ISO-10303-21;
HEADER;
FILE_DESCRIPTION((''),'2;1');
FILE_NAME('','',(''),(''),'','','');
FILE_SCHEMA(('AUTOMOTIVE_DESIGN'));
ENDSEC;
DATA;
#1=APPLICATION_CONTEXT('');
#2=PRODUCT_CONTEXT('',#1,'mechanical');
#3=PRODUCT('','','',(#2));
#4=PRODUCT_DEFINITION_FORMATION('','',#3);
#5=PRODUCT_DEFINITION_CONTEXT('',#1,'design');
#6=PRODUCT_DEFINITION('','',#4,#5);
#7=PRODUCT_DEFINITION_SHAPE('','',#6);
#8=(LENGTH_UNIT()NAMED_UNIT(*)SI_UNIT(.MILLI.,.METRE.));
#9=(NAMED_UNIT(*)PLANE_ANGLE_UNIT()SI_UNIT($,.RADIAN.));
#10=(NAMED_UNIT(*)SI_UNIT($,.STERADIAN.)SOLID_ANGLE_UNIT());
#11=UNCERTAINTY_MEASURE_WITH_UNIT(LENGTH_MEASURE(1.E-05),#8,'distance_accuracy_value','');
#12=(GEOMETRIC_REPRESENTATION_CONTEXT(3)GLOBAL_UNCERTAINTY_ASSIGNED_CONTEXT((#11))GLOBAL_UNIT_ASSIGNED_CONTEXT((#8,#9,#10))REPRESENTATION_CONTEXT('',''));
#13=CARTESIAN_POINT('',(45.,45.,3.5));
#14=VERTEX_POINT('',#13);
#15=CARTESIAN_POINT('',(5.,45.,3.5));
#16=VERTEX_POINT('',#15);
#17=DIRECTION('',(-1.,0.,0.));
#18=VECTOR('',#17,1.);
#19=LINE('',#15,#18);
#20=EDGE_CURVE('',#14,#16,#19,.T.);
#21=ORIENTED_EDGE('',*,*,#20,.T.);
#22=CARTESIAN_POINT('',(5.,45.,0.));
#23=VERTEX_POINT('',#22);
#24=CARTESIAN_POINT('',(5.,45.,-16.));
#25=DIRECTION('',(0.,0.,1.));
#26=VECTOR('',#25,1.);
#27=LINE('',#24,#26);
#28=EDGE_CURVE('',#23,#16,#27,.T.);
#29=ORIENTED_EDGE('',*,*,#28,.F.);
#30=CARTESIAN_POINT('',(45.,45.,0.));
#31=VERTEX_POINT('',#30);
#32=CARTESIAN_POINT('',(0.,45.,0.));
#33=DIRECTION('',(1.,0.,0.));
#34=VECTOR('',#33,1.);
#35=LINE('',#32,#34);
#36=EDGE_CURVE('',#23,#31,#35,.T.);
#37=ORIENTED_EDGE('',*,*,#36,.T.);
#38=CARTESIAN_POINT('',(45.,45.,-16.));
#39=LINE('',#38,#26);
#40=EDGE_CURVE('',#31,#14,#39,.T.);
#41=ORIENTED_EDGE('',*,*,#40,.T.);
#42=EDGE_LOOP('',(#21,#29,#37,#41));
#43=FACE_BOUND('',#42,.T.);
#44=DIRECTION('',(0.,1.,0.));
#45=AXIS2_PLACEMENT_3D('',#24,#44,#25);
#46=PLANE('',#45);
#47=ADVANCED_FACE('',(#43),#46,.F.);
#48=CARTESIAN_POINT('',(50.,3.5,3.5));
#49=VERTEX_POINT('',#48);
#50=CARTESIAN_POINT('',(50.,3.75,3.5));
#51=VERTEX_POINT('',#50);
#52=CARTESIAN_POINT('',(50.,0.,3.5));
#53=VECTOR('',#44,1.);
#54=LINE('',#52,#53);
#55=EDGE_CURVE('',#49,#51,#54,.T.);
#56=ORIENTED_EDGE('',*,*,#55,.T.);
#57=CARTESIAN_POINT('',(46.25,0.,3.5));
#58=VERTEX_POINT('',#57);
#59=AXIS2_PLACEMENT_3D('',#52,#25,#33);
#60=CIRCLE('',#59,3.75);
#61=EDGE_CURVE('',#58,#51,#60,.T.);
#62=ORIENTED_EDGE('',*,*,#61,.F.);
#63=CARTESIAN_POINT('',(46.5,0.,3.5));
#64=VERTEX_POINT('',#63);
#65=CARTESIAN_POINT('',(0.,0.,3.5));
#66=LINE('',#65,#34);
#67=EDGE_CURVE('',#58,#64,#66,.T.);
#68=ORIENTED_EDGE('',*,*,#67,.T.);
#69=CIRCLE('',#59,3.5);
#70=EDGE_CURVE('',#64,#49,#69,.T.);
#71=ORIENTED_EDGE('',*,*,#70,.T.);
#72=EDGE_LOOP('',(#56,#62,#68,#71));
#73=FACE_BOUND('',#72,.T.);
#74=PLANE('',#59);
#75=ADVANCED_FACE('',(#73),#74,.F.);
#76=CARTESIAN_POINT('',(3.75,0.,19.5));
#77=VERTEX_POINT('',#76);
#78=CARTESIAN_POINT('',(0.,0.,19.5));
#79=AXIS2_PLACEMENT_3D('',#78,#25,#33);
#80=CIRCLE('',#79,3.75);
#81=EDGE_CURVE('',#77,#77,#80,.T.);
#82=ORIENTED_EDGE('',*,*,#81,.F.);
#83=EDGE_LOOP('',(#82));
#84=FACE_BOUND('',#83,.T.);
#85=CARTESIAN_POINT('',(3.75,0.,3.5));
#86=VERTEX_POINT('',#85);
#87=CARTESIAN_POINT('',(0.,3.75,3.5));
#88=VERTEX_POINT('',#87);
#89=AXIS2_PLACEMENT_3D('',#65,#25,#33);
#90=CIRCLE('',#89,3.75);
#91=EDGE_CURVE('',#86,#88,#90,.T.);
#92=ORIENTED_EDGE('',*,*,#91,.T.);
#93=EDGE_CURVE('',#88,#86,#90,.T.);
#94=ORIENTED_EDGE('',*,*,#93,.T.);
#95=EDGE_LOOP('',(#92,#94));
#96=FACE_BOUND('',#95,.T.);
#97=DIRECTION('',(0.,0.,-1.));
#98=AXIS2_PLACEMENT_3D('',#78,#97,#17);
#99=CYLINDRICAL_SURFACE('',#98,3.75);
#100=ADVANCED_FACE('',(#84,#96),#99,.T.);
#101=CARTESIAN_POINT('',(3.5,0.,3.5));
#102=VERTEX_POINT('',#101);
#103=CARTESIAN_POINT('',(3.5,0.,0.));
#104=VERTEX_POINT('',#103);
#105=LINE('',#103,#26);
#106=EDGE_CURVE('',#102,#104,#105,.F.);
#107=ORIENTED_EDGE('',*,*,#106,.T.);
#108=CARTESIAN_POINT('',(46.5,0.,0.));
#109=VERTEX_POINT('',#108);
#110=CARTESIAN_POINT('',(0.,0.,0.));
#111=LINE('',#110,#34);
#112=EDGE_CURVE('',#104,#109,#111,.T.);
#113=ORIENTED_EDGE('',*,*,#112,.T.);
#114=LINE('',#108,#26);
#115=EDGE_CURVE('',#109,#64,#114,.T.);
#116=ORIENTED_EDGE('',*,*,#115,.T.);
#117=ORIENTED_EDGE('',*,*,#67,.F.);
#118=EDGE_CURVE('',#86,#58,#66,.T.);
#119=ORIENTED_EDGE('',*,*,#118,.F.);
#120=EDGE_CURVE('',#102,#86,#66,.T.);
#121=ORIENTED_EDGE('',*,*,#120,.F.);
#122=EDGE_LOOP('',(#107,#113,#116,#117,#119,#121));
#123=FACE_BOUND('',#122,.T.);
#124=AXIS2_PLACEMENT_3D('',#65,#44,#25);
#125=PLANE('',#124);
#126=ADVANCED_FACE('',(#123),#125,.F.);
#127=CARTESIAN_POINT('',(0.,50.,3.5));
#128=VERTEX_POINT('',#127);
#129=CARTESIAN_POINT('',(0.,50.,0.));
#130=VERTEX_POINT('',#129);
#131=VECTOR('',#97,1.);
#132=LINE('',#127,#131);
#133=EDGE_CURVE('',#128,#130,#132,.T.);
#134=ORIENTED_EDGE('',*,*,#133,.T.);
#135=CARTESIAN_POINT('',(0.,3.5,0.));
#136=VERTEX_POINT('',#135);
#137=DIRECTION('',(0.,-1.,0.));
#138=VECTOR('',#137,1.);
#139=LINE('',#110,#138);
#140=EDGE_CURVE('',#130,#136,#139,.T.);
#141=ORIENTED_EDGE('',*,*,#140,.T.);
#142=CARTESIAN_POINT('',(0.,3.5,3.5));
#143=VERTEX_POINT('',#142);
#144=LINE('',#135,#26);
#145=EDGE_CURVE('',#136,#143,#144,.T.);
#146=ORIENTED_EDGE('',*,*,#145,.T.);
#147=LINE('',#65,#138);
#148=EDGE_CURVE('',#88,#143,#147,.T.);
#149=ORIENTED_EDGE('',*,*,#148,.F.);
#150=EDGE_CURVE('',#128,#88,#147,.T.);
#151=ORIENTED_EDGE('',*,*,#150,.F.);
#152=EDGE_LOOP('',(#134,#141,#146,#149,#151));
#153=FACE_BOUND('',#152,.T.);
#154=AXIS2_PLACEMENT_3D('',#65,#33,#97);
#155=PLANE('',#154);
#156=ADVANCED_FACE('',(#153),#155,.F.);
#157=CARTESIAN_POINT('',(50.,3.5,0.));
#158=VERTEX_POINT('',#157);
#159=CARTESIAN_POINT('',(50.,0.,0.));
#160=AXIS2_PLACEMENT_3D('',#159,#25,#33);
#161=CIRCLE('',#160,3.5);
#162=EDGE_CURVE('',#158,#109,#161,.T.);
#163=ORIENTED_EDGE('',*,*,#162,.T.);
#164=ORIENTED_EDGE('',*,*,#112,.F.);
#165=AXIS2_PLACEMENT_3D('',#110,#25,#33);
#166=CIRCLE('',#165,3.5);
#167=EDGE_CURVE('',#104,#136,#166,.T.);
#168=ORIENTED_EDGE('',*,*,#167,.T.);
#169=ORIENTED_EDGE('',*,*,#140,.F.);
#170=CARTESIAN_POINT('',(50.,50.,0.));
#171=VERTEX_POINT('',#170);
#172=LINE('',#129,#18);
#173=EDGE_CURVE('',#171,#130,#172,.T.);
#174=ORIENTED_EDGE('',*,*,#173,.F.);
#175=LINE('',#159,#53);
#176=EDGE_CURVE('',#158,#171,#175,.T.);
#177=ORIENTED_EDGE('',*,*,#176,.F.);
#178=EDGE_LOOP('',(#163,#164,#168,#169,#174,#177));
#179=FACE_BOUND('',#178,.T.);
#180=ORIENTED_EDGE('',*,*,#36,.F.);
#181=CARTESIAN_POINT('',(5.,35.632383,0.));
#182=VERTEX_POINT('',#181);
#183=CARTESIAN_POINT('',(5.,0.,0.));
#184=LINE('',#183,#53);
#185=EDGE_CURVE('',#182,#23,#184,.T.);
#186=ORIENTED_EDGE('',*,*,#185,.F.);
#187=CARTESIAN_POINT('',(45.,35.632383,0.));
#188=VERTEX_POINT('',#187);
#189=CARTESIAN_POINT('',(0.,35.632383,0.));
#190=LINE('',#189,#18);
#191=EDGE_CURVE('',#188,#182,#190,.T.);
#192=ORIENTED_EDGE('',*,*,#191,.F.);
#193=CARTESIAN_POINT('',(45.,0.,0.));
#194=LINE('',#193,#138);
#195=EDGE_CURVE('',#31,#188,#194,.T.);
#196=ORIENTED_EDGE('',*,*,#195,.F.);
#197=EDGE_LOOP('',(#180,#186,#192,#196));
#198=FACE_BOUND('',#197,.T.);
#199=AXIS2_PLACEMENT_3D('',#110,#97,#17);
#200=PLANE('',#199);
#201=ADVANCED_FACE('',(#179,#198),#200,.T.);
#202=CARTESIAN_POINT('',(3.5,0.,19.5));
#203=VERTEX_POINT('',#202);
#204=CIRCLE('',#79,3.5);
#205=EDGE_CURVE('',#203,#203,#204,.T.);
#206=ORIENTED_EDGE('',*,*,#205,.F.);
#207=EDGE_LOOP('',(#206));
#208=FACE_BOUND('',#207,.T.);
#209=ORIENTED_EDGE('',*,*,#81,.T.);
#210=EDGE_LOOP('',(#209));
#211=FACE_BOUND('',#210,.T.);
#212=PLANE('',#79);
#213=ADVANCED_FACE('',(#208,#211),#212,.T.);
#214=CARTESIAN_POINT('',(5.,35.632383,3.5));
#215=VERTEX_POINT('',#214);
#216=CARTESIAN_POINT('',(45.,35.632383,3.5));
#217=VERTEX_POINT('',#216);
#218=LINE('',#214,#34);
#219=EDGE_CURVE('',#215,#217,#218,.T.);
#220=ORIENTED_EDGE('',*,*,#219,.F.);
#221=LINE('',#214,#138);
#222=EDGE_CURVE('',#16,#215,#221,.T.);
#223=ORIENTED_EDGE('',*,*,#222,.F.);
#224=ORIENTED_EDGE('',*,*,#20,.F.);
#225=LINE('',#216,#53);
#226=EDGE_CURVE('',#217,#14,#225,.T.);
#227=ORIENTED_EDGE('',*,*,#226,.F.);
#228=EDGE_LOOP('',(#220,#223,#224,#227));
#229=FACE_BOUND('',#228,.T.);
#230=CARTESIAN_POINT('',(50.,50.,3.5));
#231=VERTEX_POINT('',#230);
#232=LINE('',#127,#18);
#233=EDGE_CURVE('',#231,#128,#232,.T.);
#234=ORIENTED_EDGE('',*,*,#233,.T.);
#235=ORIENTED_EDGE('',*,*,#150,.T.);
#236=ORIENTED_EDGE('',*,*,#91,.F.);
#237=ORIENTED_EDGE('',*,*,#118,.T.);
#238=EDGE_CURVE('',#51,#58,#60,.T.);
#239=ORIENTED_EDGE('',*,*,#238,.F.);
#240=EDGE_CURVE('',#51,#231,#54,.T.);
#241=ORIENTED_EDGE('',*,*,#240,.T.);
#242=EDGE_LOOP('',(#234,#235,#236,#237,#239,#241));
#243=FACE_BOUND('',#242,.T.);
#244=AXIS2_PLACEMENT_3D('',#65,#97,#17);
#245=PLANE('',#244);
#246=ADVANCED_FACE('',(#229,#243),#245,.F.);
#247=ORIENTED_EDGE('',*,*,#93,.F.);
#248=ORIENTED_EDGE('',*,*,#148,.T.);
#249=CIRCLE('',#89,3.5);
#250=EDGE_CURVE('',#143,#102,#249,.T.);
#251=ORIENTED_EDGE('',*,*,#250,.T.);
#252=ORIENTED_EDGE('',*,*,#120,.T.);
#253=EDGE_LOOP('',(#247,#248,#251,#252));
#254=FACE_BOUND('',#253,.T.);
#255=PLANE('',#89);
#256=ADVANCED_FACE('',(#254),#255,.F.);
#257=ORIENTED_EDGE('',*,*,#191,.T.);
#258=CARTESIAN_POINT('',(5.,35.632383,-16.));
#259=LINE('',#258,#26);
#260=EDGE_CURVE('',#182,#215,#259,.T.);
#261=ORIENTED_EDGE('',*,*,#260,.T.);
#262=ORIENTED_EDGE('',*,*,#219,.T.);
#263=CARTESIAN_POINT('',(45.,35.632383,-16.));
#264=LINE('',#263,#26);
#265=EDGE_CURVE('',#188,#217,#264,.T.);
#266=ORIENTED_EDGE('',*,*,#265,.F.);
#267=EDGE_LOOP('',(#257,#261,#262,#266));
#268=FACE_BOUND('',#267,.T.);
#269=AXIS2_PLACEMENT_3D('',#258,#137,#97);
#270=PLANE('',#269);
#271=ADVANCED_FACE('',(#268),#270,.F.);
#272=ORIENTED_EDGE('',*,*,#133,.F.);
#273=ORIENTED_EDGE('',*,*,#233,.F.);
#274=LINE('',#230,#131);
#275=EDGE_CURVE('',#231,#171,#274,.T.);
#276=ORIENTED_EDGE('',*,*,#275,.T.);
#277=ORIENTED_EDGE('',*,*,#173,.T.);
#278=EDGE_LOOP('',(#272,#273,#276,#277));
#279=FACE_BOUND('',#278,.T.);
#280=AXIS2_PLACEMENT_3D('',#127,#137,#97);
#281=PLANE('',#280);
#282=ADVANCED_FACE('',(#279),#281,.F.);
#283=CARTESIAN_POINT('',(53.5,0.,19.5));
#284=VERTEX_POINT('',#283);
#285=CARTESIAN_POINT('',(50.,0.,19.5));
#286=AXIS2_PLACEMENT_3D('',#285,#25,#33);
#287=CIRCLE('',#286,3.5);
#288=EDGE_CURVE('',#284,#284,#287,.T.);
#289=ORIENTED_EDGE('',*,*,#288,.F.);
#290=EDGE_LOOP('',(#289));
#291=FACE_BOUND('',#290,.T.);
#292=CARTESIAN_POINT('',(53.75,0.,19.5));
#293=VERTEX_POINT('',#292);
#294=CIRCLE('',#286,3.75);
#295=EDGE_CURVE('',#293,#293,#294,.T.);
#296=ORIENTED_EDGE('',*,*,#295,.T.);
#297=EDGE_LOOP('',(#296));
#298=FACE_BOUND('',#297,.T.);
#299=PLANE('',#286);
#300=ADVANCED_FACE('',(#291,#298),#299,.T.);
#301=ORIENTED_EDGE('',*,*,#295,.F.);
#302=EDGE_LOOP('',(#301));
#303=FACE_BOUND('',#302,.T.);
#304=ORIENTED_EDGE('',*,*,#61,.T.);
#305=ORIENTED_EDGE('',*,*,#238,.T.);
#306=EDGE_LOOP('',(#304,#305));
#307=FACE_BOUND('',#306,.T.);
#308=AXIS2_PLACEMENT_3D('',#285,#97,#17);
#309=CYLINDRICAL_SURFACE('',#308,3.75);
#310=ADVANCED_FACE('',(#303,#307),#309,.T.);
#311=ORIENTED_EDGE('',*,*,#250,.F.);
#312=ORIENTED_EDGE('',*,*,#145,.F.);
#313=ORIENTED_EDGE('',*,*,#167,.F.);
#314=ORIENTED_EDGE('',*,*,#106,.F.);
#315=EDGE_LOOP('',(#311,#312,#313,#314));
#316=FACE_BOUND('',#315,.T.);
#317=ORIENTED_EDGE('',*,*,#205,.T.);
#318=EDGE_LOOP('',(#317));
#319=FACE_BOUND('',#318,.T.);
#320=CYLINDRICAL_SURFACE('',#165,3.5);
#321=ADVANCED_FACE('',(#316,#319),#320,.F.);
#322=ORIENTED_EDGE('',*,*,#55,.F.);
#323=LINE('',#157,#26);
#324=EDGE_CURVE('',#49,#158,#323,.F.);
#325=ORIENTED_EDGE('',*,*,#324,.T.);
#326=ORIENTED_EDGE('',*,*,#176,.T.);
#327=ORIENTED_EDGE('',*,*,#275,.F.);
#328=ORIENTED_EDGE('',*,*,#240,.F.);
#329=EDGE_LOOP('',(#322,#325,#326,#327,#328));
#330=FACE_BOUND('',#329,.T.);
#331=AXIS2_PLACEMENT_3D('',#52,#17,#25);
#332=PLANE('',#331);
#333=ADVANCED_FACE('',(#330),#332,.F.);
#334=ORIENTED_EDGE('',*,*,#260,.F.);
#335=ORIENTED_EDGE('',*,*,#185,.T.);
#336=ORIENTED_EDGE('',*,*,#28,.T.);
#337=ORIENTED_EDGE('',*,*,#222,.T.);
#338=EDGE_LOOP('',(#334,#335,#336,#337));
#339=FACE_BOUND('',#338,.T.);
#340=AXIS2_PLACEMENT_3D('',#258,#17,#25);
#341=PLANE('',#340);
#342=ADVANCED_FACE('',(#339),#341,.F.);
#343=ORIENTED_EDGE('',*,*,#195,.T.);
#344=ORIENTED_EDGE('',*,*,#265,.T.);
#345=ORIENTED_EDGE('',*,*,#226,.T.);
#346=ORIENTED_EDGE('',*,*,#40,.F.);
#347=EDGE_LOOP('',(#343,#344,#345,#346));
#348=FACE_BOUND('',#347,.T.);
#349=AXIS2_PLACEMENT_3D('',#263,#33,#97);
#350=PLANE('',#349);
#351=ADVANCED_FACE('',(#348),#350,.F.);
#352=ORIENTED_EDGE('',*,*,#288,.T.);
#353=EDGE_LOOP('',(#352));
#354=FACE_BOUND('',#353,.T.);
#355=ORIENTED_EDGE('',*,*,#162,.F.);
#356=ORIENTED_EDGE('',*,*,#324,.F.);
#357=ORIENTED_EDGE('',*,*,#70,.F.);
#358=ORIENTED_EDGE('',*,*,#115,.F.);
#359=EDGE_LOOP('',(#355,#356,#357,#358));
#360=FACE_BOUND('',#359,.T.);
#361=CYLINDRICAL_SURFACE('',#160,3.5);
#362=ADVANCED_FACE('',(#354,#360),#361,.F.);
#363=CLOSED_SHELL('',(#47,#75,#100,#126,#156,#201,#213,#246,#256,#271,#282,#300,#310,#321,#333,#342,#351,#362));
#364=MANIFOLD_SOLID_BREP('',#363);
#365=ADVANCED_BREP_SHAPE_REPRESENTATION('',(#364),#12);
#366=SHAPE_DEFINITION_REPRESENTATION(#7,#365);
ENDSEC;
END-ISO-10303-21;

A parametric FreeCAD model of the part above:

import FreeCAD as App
import Part
import Sketcher
Q = App.Units.Quantity

doc = App.newDocument("Part")
body = doc.addObject("PartDesign::Body", "Body")

# Sketch on XY plane
sketch1 = body.newObject("Sketcher::SketchObject", "Sketch")
sketch1.AttachmentSupport = (doc.getObject("XY_Plane"), [""])
sketch1.MapMode = "FlatFace"
sketch1.addGeometry(Part.LineSegment(App.Vector(0, 50, 0), App.Vector(0, 0, 0)), False)
sketch1.addGeometry(Part.LineSegment(App.Vector(0, 0, 0), App.Vector(50, 0, 0)), False)
sketch1.addGeometry(Part.LineSegment(App.Vector(50, 0, 0), App.Vector(50, 50, 0)), False)
sketch1.addGeometry(Part.LineSegment(App.Vector(50, 50, 0), App.Vector(0, 50, 0)), False)
sketch1.addConstraint(Sketcher.Constraint("Coincident", 0, 2, 1, 1))
sketch1.addConstraint(Sketcher.Constraint("Coincident", 1, 2, 2, 1))
sketch1.addConstraint(Sketcher.Constraint("Coincident", 2, 2, 3, 1))
sketch1.addConstraint(Sketcher.Constraint("Coincident", 3, 2, 0, 1))
sketch1.addConstraint(Sketcher.Constraint("Vertical", 0))
sketch1.addConstraint(Sketcher.Constraint("Horizontal", 1))
sketch1.addConstraint(Sketcher.Constraint("Vertical", 2))
sketch1.addConstraint(Sketcher.Constraint("Horizontal", 3))
sketch1.addConstraint(Sketcher.Constraint("Coincident", 0, 2, -1, 1))
sketch1.addConstraint(Sketcher.Constraint("Equal", 3, 0))
sketch1.addConstraint(Sketcher.Constraint("DistanceX", 1, 1, 1, 2, Q("50 mm")))
pad1 = body.newObject("PartDesign::Pad", "Pad")
pad1.Profile = sketch1
pad1.Length = 3.5

# Sketch on XY plane
sketch2 = body.newObject("Sketcher::SketchObject", "Sketch001")
sketch2.AttachmentSupport = (doc.getObject("XY_Plane"), [""])
sketch2.MapMode = "FlatFace"
sketch2.AttachmentOffset = App.Placement(App.Vector(0, 0, 3.5), App.Rotation())
sketch2.addGeometry(Part.Circle(App.Vector(0, 0, 0), App.Vector(0, 0, 1), 3.8), False)
sketch2.addGeometry(Part.Circle(App.Vector(50, 0, 0), App.Vector(0, 0, 1), 3.8), False)
sketch2.addConstraint(Sketcher.Constraint("Coincident", 0, 3, -1, 1))
sketch2.addConstraint(Sketcher.Constraint("Equal", 0, 1))
sketch2.addConstraint(Sketcher.Constraint("PointOnObject", 1, 3, -1))
sketch2.addConstraint(Sketcher.Constraint("Diameter", 0, Q("7.5 mm")))
sketch2.addConstraint(Sketcher.Constraint("DistanceX", -1, 1, 1, 3, Q("50 mm")))
pad2 = body.newObject("PartDesign::Pad", "Pad001")
pad2.Profile = sketch2
pad2.Length = 16

# Sketch on XY plane
sketch3 = body.newObject("Sketcher::SketchObject", "Sketch002")
sketch3.AttachmentSupport = (doc.getObject("XY_Plane"), [""])
sketch3.MapMode = "FlatFace"
sketch3.AttachmentOffset = App.Placement(App.Vector(0, 0, 19.5), App.Rotation())
sketch3.addGeometry(Part.Circle(App.Vector(0, 0, 0), App.Vector(0, 0, 1), 3.5), False)
sketch3.addGeometry(Part.Circle(App.Vector(50, 0, 0), App.Vector(0, 0, 1), 3.5), False)
sketch3.addConstraint(Sketcher.Constraint("Coincident", 0, 3, -1, 1))
sketch3.addConstraint(Sketcher.Constraint("Equal", 0, 1))
sketch3.addConstraint(Sketcher.Constraint("PointOnObject", 1, 3, -1))
sketch3.addConstraint(Sketcher.Constraint("Diameter", 0, Q("7 mm")))
sketch3.addConstraint(Sketcher.Constraint("DistanceX", -1, 1, 1, 3, Q("50 mm")))
pocket1 = body.newObject("PartDesign::Pocket", "Pocket")
pocket1.Profile = sketch3
pocket1.Length = 19.5

# Sketch on XY plane
sketch4 = body.newObject("Sketcher::SketchObject", "Sketch003")
sketch4.AttachmentSupport = (doc.getObject("XY_Plane"), [""])
sketch4.MapMode = "FlatFace"
sketch4.AttachmentOffset = App.Placement(App.Vector(0, 0, 3.5), App.Rotation())
sketch4.addGeometry(Part.LineSegment(App.Vector(5, 45, 0), App.Vector(5, 36, 0)), False)
sketch4.addGeometry(Part.LineSegment(App.Vector(5, 36, 0), App.Vector(45, 36, 0)), False)
sketch4.addGeometry(Part.LineSegment(App.Vector(45, 36, 0), App.Vector(45, 45, 0)), False)
sketch4.addGeometry(Part.LineSegment(App.Vector(45, 45, 0), App.Vector(5, 45, 0)), False)
sketch4.addConstraint(Sketcher.Constraint("Coincident", 0, 2, 1, 1))
sketch4.addConstraint(Sketcher.Constraint("Coincident", 1, 2, 2, 1))
sketch4.addConstraint(Sketcher.Constraint("Coincident", 2, 2, 3, 1))
sketch4.addConstraint(Sketcher.Constraint("Coincident", 3, 2, 0, 1))
sketch4.addConstraint(Sketcher.Constraint("Vertical", 0))
sketch4.addConstraint(Sketcher.Constraint("Horizontal", 1))
sketch4.addConstraint(Sketcher.Constraint("Vertical", 2))
sketch4.addConstraint(Sketcher.Constraint("Horizontal", 3))
sketch4.addConstraint(Sketcher.Constraint("DistanceX", 1, 1, 1, 2, Q("40 mm")))
sketch4.addConstraint(Sketcher.Constraint("DistanceX", -1, 1, 0, 2, Q("5 mm")))
sketch4.addConstraint(Sketcher.Constraint("DistanceY", -1, 1, 2, 2, Q("45 mm")))
sketch4.addConstraint(Sketcher.Constraint("DistanceY", 0, 2, 0, 1, Q("9.367617 mm")))
pocket2 = body.newObject("PartDesign::Pocket", "Pocket001")
pocket2.Profile = sketch4
pocket2.Length = 19.5

doc.recompute()
